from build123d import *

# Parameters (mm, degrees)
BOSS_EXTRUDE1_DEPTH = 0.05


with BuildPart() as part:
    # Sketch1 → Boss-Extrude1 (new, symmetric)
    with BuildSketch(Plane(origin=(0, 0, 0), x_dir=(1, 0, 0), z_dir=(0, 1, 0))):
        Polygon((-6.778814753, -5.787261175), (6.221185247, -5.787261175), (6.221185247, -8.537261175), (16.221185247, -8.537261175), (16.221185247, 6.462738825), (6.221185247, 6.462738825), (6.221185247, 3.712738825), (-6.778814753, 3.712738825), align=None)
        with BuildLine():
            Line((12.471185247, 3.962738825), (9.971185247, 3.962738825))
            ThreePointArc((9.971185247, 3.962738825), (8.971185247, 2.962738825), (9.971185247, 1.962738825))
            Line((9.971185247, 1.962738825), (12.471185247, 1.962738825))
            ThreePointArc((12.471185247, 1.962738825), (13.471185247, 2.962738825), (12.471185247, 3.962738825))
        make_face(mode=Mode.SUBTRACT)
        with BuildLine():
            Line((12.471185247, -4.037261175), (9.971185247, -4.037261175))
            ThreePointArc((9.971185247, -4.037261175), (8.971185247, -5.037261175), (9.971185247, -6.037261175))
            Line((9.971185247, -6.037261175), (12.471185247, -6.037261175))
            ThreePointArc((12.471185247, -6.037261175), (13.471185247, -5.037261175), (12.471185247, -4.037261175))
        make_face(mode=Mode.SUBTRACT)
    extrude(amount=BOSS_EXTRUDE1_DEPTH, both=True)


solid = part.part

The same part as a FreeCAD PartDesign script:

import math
import FreeCAD as App
import Part
import Sketcher

V = App.Vector


def add_polygon(sketch, points):
    """Adds a closed chain of lines whose ends are joined by coincident constraints."""
    first, n = sketch.GeometryCount, len(points)
    for a, b in zip(points, points[1:] + points[:1]):
        sketch.addGeometry(Part.LineSegment(App.Vector(*a, 0), App.Vector(*b, 0)), False)
    for i in range(n):
        sketch.addConstraint(Sketcher.Constraint("Coincident", first + i, 2, first + (i + 1) % n, 1))

doc = App.newDocument("Part")
params = doc.addObject("Spreadsheet::Sheet", "Params")
for row, (alias, value) in enumerate([
    ("sketch1_radius", "1 mm"),
    ("sketch1_width", "13 mm"),
    ("sketch1_width2", "10 mm"),
    ("sketch1_height", "15 mm"),
    ("sketch1_width3", "2.5 mm"),
    ("pad1_length", "0.1 mm"),
], start=1):
    params.set(f"A{row}", alias)
    params.set(f"B{row}", "=" + value)
    params.setAlias(f"B{row}", alias)

body = doc.addObject("PartDesign::Body", "Body")

sketch1 = body.newObject("Sketcher::SketchObject", "Sketch")
sketch1.AttachmentSupport = (doc.getObject("XZ_Plane"), [""])
sketch1.MapMode = "FlatFace"
add_polygon(sketch1, [(-6.778815, 5.787261), (6.221185, 5.787261), (6.221185, 8.537261), (16.221185, 8.537261), (16.221185, -6.462739), (6.221185, -6.462739), (6.221185, -3.712739), (-6.778815, -3.712739)])
sketch1.addGeometry(Part.LineSegment(V(9.971185, 4.037261, 0), V(12.471185, 4.037261, 0)), False)
sketch1.addGeometry(Part.ArcOfCircle(Part.Circle(V(12.471185, 5.037261, 0), V(0, 0, 1), 1), math.radians(-90), math.radians(90)), False)
sketch1.addGeometry(Part.LineSegment(V(12.471185, 6.037261, 0), V(9.971185, 6.037261, 0)), False)
sketch1.addGeometry(Part.ArcOfCircle(Part.Circle(V(9.971185, 5.037261, 0), V(0, 0, 1), 1), math.radians(90), math.radians(270)), False)
sketch1.addGeometry(Part.LineSegment(V(9.971185, -3.962739, 0), V(12.471185, -3.962739, 0)), False)
sketch1.addGeometry(Part.ArcOfCircle(Part.Circle(V(12.471185, -2.962739, 0), V(0, 0, 1), 1), math.radians(-90), math.radians(90)), False)
sketch1.addGeometry(Part.LineSegment(V(12.471185, -1.962739, 0), V(9.971185, -1.962739, 0)), False)
sketch1.addGeometry(Part.ArcOfCircle(Part.Circle(V(9.971185, -2.962739, 0), V(0, 0, 1), 1), math.radians(90), math.radians(270)), False)
sketch1.addConstraint(Sketcher.Constraint("Tangent", 8, 2, 9, 1))
sketch1.addConstraint(Sketcher.Constraint("Tangent", 9, 2, 10, 1))
sketch1.addConstraint(Sketcher.Constraint("Tangent", 10, 2, 11, 1))
sketch1.addConstraint(Sketcher.Constraint("Tangent", 11, 2, 8, 1))
sketch1.addConstraint(Sketcher.Constraint("Tangent", 12, 2, 13, 1))
sketch1.addConstraint(Sketcher.Constraint("Tangent", 13, 2, 14, 1))
sketch1.addConstraint(Sketcher.Constraint("Tangent", 14, 2, 15, 1))
sketch1.addConstraint(Sketcher.Constraint("Tangent", 15, 2, 12, 1))
sketch1.addConstraint(Sketcher.Constraint("Horizontal", 0))
sketch1.addConstraint(Sketcher.Constraint("Vertical", 1))
sketch1.addConstraint(Sketcher.Constraint("Horizontal", 2))
sketch1.addConstraint(Sketcher.Constraint("Vertical", 3))
sketch1.addConstraint(Sketcher.Constraint("Horizontal", 4))
sketch1.addConstraint(Sketcher.Constraint("Vertical", 5))
sketch1.addConstraint(Sketcher.Constraint("Horizontal", 6))
sketch1.addConstraint(Sketcher.Constraint("Vertical", 7))
sketch1.addConstraint(Sketcher.Constraint("Horizontal", 8))
sketch1.addConstraint(Sketcher.Constraint("Horizontal", 10))
sketch1.addConstraint(Sketcher.Constraint("Horizontal", 12))
sketch1.addConstraint(Sketcher.Constraint("Horizontal", 14))
sketch1.addConstraint(Sketcher.Constraint("Equal", 11, 13))
sketch1.addConstraint(Sketcher.Constraint("Vertical", 9, 3, 13, 3))
sketch1.addConstraint(Sketcher.Constraint("Vertical", 11, 3, 15, 3))
sketch1.addConstraint(Sketcher.Constraint("Vertical", 1, 2, 4, 2))
sketch1.addConstraint(Sketcher.Constraint("Equal", 1, 5))
sketch1.addConstraint(Sketcher.Constraint("Radius", 9, 1.0))
sketch1.addConstraint(Sketcher.Constraint("DistanceX", 0, 1, 0, 2, 13.0))
sketch1.addConstraint(Sketcher.Constraint("DistanceX", 2, 1, 2, 2, 10.0))
sketch1.addConstraint(Sketcher.Constraint("DistanceY", 3, 2, 3, 1, 15.0))
sketch1.addConstraint(Sketcher.Constraint("DistanceX", 8, 1, 8, 2, 2.5))
sketch1.addConstraint(Sketcher.Constraint("DistanceY", 7, 1, 7, 2, 9.5))
sketch1.addConstraint(Sketcher.Constraint("DistanceY", 13, 3, 9, 3, 8.0))
sketch1.addConstraint(Sketcher.Constraint("DistanceY", 11, 3, 1, 2, 3.5))
sketch1.addConstraint(Sketcher.Constraint("DistanceX", 0, 2, 11, 3, 3.75))
sketch1.addConstraint(Sketcher.Constraint("DistanceY", -1, 1, 9, 3, 5.037261))
sketch1.addConstraint(Sketcher.Constraint("DistanceX", -1, 1, 9, 3, 12.471185))
sketch1.setExpression("Constraints[33]", "Params.sketch1_radius")
sketch1.setExpression("Constraints[34]", "Params.sketch1_width")
sketch1.setExpression("Constraints[35]", "Params.sketch1_width2")
sketch1.setExpression("Constraints[36]", "Params.sketch1_height")
sketch1.setExpression("Constraints[37]", "Params.sketch1_width3")
pad1 = body.newObject("PartDesign::Pad", "Pad")
pad1.Profile = sketch1
pad1.setExpression("Length", "Params.pad1_length")
pad1.Midplane = True

doc.recompute()
